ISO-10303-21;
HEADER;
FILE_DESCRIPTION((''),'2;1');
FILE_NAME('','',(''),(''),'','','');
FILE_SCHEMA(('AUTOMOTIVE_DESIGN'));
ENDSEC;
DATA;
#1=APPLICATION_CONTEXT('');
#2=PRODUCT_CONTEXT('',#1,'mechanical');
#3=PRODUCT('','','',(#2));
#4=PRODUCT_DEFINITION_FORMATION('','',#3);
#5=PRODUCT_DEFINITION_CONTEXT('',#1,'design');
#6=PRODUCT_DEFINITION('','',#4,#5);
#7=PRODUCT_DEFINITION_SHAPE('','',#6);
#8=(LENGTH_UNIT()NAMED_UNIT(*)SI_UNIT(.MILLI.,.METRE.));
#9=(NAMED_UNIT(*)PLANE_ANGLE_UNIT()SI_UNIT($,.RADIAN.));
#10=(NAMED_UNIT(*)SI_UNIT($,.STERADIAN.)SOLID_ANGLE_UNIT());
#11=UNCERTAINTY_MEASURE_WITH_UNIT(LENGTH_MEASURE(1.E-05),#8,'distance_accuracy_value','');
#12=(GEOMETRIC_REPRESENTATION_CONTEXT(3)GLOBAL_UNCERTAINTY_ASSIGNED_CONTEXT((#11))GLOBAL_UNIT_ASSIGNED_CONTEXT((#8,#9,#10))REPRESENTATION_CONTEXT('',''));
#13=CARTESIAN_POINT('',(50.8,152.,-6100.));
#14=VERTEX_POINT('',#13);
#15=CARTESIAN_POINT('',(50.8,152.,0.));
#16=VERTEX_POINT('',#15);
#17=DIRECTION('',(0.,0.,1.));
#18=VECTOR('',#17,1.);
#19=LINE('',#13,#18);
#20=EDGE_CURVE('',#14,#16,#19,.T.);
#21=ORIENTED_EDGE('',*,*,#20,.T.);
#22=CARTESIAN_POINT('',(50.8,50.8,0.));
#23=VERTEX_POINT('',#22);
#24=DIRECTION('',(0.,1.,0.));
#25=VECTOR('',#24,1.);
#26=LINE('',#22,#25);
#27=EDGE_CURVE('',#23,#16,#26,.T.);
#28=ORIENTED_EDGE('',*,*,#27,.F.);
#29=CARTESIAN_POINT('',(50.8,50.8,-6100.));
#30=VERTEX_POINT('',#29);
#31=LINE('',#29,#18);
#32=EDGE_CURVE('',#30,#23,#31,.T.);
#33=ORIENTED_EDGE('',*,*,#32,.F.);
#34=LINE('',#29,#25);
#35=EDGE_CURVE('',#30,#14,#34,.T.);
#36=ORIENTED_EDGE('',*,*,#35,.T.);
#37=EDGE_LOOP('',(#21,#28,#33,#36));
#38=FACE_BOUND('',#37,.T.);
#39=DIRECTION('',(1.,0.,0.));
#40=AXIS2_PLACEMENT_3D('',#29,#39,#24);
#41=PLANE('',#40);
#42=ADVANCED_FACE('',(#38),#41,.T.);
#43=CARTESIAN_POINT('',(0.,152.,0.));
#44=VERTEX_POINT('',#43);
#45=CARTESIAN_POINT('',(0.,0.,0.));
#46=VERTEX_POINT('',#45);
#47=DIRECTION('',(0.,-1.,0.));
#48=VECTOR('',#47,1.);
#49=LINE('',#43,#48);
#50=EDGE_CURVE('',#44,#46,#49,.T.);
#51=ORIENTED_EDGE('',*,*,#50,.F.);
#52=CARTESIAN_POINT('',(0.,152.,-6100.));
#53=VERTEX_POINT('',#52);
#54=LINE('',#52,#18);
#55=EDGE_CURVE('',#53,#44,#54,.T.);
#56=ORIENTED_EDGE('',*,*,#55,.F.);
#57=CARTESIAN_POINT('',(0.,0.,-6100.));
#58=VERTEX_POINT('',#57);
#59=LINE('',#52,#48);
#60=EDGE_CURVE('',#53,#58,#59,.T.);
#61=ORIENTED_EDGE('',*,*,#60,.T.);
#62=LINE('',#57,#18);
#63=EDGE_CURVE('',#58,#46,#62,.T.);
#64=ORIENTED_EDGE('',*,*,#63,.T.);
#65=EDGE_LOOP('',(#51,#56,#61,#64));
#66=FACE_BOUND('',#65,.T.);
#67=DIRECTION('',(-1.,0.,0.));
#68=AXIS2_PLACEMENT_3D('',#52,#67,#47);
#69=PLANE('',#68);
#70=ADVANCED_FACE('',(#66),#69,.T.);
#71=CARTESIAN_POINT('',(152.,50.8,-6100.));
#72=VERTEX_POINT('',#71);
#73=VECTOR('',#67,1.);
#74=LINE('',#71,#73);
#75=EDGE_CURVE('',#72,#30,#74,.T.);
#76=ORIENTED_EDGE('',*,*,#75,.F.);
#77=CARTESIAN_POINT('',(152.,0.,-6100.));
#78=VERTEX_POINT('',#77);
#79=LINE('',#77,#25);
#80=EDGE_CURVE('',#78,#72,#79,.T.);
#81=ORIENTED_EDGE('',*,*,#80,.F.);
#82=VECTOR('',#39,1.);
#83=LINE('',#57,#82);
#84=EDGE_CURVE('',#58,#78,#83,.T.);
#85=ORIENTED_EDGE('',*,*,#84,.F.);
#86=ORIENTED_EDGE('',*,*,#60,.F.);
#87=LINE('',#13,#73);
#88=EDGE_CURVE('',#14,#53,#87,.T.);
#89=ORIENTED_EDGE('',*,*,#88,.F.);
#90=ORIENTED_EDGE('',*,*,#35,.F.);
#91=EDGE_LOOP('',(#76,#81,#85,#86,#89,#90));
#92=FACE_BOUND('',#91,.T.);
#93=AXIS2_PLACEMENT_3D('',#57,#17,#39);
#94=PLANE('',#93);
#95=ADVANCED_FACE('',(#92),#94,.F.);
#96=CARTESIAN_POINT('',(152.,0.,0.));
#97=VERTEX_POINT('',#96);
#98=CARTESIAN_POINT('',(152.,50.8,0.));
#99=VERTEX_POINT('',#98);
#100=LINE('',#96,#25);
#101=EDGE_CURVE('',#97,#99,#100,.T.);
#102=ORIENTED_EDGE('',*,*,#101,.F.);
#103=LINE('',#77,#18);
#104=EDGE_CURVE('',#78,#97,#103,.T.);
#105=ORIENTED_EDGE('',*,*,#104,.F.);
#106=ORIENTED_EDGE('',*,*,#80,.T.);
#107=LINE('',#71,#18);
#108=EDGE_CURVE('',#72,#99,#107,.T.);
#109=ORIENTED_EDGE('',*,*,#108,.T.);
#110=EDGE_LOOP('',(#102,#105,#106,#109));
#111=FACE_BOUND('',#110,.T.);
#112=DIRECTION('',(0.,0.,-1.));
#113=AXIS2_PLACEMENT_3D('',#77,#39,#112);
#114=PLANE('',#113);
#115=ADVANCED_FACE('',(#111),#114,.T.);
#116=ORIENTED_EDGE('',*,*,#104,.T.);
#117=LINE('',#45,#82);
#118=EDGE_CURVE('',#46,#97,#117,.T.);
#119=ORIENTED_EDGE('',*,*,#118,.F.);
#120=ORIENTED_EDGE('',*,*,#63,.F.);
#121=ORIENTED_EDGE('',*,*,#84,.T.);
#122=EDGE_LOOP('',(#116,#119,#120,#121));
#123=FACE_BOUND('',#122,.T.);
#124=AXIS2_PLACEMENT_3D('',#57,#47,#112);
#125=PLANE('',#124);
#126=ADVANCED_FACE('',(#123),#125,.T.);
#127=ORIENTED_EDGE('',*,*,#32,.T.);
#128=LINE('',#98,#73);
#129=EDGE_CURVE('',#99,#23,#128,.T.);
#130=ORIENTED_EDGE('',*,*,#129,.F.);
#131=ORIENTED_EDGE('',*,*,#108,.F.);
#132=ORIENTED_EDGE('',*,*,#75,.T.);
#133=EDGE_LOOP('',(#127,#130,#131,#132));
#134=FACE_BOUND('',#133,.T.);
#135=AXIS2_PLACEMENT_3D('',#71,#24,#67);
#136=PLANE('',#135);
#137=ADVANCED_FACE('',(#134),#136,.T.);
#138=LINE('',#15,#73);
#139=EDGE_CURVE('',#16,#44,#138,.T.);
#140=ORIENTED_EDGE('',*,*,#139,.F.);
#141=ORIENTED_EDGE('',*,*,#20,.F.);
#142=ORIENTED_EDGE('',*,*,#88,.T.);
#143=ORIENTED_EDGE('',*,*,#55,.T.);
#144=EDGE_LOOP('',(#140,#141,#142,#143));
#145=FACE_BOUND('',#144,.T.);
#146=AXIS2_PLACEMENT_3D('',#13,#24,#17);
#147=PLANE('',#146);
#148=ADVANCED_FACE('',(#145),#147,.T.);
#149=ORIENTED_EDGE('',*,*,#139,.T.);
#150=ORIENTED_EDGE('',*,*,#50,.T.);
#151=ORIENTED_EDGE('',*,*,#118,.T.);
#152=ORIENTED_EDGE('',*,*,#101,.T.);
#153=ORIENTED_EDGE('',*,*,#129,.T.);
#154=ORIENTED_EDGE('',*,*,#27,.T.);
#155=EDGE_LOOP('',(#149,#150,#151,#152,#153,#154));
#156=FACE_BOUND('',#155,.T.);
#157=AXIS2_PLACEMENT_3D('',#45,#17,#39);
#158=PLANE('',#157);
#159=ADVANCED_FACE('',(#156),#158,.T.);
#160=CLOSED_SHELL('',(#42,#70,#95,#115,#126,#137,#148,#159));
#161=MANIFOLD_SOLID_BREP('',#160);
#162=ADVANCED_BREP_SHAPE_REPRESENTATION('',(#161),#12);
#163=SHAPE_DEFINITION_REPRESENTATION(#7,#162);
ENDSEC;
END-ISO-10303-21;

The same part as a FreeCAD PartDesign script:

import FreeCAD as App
import Part
import Sketcher
Q = App.Units.Quantity

doc = App.newDocument("Part")
body = doc.addObject("PartDesign::Body", "Body")

# Sketch on XY plane
sketch1 = doc.addObject("Sketcher::SketchObject", "Sketch")
body.addObject(sketch1)
sketch1.AttachmentSupport = (doc.XY_Plane, [""])
sketch1.MapMode = "FlatFace"
sketch1.addGeometry([
    Part.LineSegment(App.Vector(0, 152, 0), App.Vector(0, 0, 0)),  # 0
    Part.LineSegment(App.Vector(0, 0, 0), App.Vector(152, 0, 0)),  # 1
    Part.LineSegment(App.Vector(152, 0, 0), App.Vector(152, 51, 0)),  # 2
    Part.LineSegment(App.Vector(152, 51, 0), App.Vector(51, 51, 0)),  # 3
    Part.LineSegment(App.Vector(51, 51, 0), App.Vector(51, 152, 0)),  # 4
    Part.LineSegment(App.Vector(51, 152, 0), App.Vector(0, 152, 0)),  # 5
], False)
sketch1.addConstraint([
    Sketcher.Constraint("Coincident", 0, 2, 1, 1),
    Sketcher.Constraint("Coincident", 1, 2, 2, 1),
    Sketcher.Constraint("Coincident", 2, 2, 3, 1),
    Sketcher.Constraint("Coincident", 3, 2, 4, 1),
    Sketcher.Constraint("Coincident", 4, 2, 5, 1),
    Sketcher.Constraint("Coincident", 5, 2, 0, 1),
    Sketcher.Constraint("Vertical", 0),
    Sketcher.Constraint("Horizontal", 1),
    Sketcher.Constraint("Vertical", 2),
    Sketcher.Constraint("Horizontal", 3),
    Sketcher.Constraint("Vertical", 4),
    Sketcher.Constraint("Horizontal", 5),
    Sketcher.Constraint("Coincident", 0, 2, -1, 1),
    Sketcher.Constraint("Equal", 1, 0),
    Sketcher.Constraint("Equal", 5, 2),
    Sketcher.Constraint("DistanceX", 1, 1, 1, 2, Q("152 mm")),
    Sketcher.Constraint("DistanceX", 3, 2, 3, 1, Q("101.2 mm")),
])
pad1 = doc.addObject("PartDesign::Pad", "Pad")
body.addObject(pad1)
pad1.Profile = sketch1
pad1.Length = 6100
pad1.Reversed = True

doc.recompute()
